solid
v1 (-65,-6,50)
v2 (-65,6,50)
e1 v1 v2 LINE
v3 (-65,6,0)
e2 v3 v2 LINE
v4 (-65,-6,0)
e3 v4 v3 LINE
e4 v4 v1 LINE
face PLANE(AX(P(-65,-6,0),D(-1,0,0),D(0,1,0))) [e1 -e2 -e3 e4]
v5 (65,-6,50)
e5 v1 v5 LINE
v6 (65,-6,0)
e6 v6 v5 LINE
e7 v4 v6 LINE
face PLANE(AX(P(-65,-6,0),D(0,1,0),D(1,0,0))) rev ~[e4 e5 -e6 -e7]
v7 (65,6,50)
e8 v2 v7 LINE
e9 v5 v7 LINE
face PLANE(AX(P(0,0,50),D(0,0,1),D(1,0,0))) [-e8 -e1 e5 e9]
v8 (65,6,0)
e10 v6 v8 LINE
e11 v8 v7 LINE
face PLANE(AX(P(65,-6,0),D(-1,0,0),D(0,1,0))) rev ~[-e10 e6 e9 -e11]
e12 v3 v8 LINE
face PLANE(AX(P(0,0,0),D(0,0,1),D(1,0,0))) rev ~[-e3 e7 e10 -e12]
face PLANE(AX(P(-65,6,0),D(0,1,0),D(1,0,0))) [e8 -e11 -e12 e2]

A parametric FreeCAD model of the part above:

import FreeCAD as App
import Part
import Sketcher


def add_polygon(sketch, points):
    """Adds a closed chain of lines whose ends are joined by coincident constraints."""
    first, n = sketch.GeometryCount, len(points)
    for a, b in zip(points, points[1:] + points[:1]):
        sketch.addGeometry(Part.LineSegment(App.Vector(*a, 0), App.Vector(*b, 0)), False)
    for i in range(n):
        sketch.addConstraint(Sketcher.Constraint("Coincident", first + i, 2, first + (i + 1) % n, 1))

doc = App.newDocument("Part")
params = doc.addObject("Spreadsheet::Sheet", "Params")
for row, (alias, value) in enumerate([
    ("sketch1_width", "130 mm"),
    ("sketch1_height", "12 mm"),
    ("pad1_length", "50 mm"),
], start=1):
    params.set(f"A{row}", alias)
    params.set(f"B{row}", "=" + value)
    params.setAlias(f"B{row}", alias)

body = doc.addObject("PartDesign::Body", "Body")

# Sketch on XY plane
sketch1 = body.newObject("Sketcher::SketchObject", "Sketch")
sketch1.AttachmentSupport = (doc.getObject("XY_Plane"), [""])
sketch1.MapMode = "FlatFace"
add_polygon(sketch1, [(-65, 6), (-65, -6), (65, -6), (65, 6)])  # lines 0-3
sketch1.addConstraint(Sketcher.Constraint("Vertical", 0))
sketch1.addConstraint(Sketcher.Constraint("Horizontal", 1))
sketch1.addConstraint(Sketcher.Constraint("Vertical", 2))
sketch1.addConstraint(Sketcher.Constraint("Horizontal", 3))
sketch1.addConstraint(Sketcher.Constraint("Symmetric", 0, 2, 2, 2, -1, 1))
sketch1.addConstraint(Sketcher.Constraint("DistanceX", 1, 1, 1, 2, 130.0))
sketch1.addConstraint(Sketcher.Constraint("DistanceY", 0, 2, 0, 1, 12.0))
sketch1.setExpression("Constraints[9]", "Params.sketch1_width")
sketch1.setExpression("Constraints[10]", "Params.sketch1_height")
pad1 = body.newObject("PartDesign::Pad", "Pad")
pad1.Profile = sketch1
pad1.setExpression("Length", "Params.pad1_length")

doc.recompute()
